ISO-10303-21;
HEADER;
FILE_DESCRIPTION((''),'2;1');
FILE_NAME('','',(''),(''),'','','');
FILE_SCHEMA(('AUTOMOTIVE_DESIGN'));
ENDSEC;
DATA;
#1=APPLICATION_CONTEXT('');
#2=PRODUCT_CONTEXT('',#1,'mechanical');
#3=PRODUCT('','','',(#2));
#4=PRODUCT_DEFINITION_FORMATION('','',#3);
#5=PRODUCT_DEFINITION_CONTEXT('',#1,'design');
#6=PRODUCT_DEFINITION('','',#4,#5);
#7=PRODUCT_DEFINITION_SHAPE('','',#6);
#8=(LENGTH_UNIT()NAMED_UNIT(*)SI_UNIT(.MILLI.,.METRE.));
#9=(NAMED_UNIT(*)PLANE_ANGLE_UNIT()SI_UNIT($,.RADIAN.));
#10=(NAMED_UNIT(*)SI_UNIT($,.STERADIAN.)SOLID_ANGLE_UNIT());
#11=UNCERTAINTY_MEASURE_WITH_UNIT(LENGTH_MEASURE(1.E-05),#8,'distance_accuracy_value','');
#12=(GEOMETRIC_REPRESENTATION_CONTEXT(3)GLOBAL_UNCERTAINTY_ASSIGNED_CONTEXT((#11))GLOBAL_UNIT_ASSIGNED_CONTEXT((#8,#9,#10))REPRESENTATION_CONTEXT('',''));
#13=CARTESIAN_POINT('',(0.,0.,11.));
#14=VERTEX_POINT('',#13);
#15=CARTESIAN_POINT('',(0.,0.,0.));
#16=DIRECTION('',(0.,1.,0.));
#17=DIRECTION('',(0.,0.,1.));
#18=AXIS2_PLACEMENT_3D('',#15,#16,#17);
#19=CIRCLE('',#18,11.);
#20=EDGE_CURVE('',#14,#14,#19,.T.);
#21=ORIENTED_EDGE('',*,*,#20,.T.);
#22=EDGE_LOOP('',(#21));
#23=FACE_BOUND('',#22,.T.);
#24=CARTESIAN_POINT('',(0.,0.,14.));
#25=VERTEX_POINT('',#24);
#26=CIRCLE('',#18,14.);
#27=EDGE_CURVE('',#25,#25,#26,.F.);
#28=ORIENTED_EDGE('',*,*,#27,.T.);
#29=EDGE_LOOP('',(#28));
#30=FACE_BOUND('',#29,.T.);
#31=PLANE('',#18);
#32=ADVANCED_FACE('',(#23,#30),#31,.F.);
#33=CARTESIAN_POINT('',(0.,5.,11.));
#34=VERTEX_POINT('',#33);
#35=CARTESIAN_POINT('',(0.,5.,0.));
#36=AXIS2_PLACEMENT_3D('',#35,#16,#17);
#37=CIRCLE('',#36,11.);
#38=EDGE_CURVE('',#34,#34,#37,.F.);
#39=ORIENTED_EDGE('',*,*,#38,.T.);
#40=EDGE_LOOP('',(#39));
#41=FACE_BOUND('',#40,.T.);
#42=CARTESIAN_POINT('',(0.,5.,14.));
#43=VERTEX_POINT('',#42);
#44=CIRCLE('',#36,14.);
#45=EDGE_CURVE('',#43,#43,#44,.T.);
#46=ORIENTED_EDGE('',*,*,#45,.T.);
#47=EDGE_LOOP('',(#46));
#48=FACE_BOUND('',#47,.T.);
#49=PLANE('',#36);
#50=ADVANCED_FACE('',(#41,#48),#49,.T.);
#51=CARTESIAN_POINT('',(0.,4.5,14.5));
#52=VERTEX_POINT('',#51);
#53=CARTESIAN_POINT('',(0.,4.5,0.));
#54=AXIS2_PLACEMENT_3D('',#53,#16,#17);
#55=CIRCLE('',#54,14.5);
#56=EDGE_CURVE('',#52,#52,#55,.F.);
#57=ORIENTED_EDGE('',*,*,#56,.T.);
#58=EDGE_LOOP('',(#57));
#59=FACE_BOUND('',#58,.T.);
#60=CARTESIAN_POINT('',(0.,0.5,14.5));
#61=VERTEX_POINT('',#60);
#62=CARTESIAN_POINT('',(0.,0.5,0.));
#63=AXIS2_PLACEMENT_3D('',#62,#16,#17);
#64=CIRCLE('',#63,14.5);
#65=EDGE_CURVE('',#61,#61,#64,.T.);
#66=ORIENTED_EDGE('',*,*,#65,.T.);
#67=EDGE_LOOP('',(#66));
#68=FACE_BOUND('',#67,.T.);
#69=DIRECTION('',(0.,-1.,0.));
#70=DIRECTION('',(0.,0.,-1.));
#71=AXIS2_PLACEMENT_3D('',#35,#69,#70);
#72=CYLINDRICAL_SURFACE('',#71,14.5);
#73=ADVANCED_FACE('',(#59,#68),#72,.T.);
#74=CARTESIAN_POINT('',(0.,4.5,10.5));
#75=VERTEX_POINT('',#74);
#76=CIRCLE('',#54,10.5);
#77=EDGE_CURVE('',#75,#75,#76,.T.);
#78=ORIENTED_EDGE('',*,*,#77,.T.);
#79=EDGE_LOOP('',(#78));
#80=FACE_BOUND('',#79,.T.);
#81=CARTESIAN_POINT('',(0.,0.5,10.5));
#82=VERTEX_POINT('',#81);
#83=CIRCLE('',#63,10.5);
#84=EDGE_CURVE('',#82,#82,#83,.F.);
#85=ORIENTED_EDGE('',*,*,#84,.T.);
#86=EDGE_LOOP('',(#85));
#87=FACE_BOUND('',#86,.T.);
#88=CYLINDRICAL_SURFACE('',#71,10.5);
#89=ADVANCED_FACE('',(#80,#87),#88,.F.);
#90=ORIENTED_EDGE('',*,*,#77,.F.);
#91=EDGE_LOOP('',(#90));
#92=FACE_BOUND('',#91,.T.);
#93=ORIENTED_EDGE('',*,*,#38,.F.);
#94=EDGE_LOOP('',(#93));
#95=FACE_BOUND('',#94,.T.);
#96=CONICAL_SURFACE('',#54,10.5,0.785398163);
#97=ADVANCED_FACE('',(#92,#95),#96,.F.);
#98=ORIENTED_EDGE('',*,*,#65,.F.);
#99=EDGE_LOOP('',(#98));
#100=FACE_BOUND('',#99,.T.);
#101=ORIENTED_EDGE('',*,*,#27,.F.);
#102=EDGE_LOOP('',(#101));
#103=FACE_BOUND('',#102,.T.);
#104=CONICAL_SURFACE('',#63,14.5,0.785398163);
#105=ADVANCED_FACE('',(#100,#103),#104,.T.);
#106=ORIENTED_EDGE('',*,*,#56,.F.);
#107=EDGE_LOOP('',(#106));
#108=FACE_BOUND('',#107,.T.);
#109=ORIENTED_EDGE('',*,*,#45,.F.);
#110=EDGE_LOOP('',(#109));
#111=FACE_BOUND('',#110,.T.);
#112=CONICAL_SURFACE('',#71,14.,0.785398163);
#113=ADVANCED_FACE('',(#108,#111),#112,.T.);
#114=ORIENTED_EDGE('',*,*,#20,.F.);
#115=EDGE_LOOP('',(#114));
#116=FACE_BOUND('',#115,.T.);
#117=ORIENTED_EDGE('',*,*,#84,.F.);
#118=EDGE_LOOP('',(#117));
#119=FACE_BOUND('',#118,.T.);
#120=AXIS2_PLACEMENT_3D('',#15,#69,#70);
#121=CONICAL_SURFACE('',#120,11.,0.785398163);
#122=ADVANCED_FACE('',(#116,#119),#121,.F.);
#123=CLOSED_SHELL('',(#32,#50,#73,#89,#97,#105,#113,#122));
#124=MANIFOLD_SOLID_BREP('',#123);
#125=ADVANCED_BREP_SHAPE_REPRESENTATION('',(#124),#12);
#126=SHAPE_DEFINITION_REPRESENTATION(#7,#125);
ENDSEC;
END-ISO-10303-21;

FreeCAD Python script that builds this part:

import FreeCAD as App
import Part
import Sketcher

V = App.Vector
Q = App.Units.Quantity


def edges_at(feature, points):
    """Names of the edges that pass closest to the given points."""
    edges = feature.Shape.Edges
    near = lambda p: min(range(len(edges)), key=lambda i: edges[i].distToShape(Part.Vertex(*p))[0])
    return sorted({f"Edge{near(p) + 1}" for p in points})

doc = App.newDocument("Part")
body = doc.addObject("PartDesign::Body", "Body")

# Sketch on XZ plane
sketch1 = body.newObject("Sketcher::SketchObject", "Sketch")
sketch1.AttachmentSupport = (doc.getObject("XZ_Plane"), [""])
sketch1.MapMode = "FlatFace"
sketch1.addGeometry(Part.Circle(V(0, 0, 0), V(0, 0, 1), 14), False)
sketch1.addGeometry(Part.Circle(V(0, 0, 0), V(0, 0, 1), 10), False)
sketch1.addConstraint(Sketcher.Constraint("Coincident", 0, 3, -1, 1))
sketch1.addConstraint(Sketcher.Constraint("Coincident", 1, 3, -1, 1))
sketch1.addConstraint(Sketcher.Constraint("Diameter", 0, Q("29 mm")))
sketch1.addConstraint(Sketcher.Constraint("Diameter", 1, Q("21 mm")))
pad1 = body.newObject("PartDesign::Pad", "Pad")
pad1.Profile = sketch1
pad1.Length = 5
pad1.Reversed = True
doc.recompute()

chamfer = body.newObject("PartDesign::Chamfer", "Chamfer")
chamfer.Base = (pad1, edges_at(pad1, [
    (-14.5, 0, 0),
    (-14.5, 5, 0),
    (-10.5, 0, 0),
    (-10.5, 5, 0),
]))
chamfer.Size = 0.5

doc.recompute()
